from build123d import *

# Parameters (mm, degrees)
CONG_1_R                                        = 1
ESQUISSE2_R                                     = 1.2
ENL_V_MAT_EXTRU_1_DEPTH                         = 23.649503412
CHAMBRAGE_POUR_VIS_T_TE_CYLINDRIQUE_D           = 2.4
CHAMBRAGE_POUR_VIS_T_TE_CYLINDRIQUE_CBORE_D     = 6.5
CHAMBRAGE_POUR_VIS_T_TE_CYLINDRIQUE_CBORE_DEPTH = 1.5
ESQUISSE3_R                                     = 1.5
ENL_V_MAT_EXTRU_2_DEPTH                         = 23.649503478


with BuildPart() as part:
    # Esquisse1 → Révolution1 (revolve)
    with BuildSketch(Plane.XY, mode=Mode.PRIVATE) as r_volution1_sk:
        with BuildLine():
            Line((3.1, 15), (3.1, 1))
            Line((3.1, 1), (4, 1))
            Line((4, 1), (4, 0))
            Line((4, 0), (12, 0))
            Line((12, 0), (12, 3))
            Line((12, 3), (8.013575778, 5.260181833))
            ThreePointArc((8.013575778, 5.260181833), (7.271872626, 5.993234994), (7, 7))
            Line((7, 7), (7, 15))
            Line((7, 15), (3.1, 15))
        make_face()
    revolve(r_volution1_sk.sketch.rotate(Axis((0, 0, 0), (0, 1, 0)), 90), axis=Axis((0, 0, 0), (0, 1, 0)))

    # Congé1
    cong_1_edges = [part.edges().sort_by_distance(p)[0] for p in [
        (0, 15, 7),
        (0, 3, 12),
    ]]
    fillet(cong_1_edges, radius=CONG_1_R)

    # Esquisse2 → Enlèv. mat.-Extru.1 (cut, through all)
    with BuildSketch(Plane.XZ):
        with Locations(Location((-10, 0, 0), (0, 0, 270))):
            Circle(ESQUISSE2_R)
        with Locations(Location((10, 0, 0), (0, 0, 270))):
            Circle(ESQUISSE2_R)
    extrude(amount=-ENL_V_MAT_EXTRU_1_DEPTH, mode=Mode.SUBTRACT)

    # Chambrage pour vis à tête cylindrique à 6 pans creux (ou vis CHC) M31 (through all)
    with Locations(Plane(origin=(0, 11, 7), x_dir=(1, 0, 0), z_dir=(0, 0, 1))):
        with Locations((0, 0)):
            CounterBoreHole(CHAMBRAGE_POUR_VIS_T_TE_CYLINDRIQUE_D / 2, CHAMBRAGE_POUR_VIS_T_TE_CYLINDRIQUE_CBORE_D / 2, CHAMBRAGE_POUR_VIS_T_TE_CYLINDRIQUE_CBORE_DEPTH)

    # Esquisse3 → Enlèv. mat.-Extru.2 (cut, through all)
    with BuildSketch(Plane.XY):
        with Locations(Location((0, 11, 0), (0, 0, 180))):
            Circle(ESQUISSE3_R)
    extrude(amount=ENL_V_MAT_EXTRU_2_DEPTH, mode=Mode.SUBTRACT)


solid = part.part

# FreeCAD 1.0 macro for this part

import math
import FreeCAD as App
import Part
import Sketcher


def edges_at(feature, points):
    """Names of the edges that pass closest to the given points."""
    edges = feature.Shape.Edges
    near = lambda p: min(range(len(edges)), key=lambda i: edges[i].distToShape(Part.Vertex(*p))[0])
    return sorted({f"Edge{near(p) + 1}" for p in points})

doc = App.newDocument("Part")
body = doc.addObject("PartDesign::Body", "Body")

# Sketch on XY plane
sketch1 = body.newObject("Sketcher::SketchObject", "Sketch")
sketch1.AttachmentSupport = (doc.getObject("XY_Plane"), [""])
sketch1.MapMode = "FlatFace"
sketch1.addGeometry(Part.LineSegment(App.Vector(3.1, 15, 0), App.Vector(3.1, 1, 0)), False)
sketch1.addGeometry(Part.LineSegment(App.Vector(3.1, 1, 0), App.Vector(4, 1, 0)), False)
sketch1.addGeometry(Part.LineSegment(App.Vector(4, 1, 0), App.Vector(4, 0, 0)), False)
sketch1.addGeometry(Part.LineSegment(App.Vector(4, 0, 0), App.Vector(12, 0, 0)), False)
sketch1.addGeometry(Part.LineSegment(App.Vector(12, 0, 0), App.Vector(12, 3, 0)), False)
sketch1.addGeometry(Part.LineSegment(App.Vector(12, 3, 0), App.Vector(8.013576, 5.260182, 0)), False)
sketch1.addGeometry(Part.ArcOfCircle(Part.Circle(App.Vector(9, 7, 0), App.Vector(0, 0, 1), 2), math.radians(-180), math.radians(-119.551924)), False)
sketch1.addGeometry(Part.LineSegment(App.Vector(7, 7, 0), App.Vector(7, 15, 0)), False)
sketch1.addGeometry(Part.LineSegment(App.Vector(7, 15, 0), App.Vector(3.1, 15, 0)), False)
sketch1.addConstraint(Sketcher.Constraint("Coincident", 0, 2, 1, 1))
sketch1.addConstraint(Sketcher.Constraint("Coincident", 1, 2, 2, 1))
sketch1.addConstraint(Sketcher.Constraint("Coincident", 2, 2, 3, 1))
sketch1.addConstraint(Sketcher.Constraint("Coincident", 3, 2, 4, 1))
sketch1.addConstraint(Sketcher.Constraint("Coincident", 4, 2, 5, 1))
sketch1.addConstraint(Sketcher.Constraint("Tangent", 5, 2, 6, 2))
sketch1.addConstraint(Sketcher.Constraint("Tangent", 6, 1, 7, 1))
sketch1.addConstraint(Sketcher.Constraint("Coincident", 7, 2, 8, 1))
sketch1.addConstraint(Sketcher.Constraint("Coincident", 8, 2, 0, 1))
sketch1.addConstraint(Sketcher.Constraint("Vertical", 0))
sketch1.addConstraint(Sketcher.Constraint("Horizontal", 1))
sketch1.addConstraint(Sketcher.Constraint("Vertical", 2))
sketch1.addConstraint(Sketcher.Constraint("Horizontal", 3))
sketch1.addConstraint(Sketcher.Constraint("Vertical", 4))
sketch1.addConstraint(Sketcher.Constraint("Vertical", 7))
sketch1.addConstraint(Sketcher.Constraint("Horizontal", 8))
sketch1.addConstraint(Sketcher.Constraint("PointOnObject", 2, 2, -1))
sketch1.addConstraint(Sketcher.Constraint("Equal", 3, 7))
sketch1.addConstraint(Sketcher.Constraint("Radius", 6, 2.0))
sketch1.addConstraint(Sketcher.Constraint("DistanceX", 3, 1, 3, 2, 8.0))
sketch1.addConstraint(Sketcher.Constraint("DistanceY", 0, 2, 0, 1, 14.0))
sketch1.addConstraint(Sketcher.Constraint("DistanceY", 2, 2, 2, 1, 1.0))
sketch1.addConstraint(Sketcher.Constraint("DistanceY", 4, 1, 4, 2, 3.0))
sketch1.addConstraint(Sketcher.Constraint("DistanceX", 1, 1, 1, 2, 0.9))
sketch1.addConstraint(Sketcher.Constraint("DistanceX", 8, 2, 8, 1, 3.9))
sketch1.addConstraint(Sketcher.Constraint("DistanceX", -1, 1, 6, 3, 9.0))
revolution = body.newObject("PartDesign::Revolution", "Revolution")
revolution.Profile = sketch1
revolution.ReferenceAxis = (sketch1, ["V_Axis"])
revolution.Angle = 360
doc.recompute()

fillet = body.newObject("PartDesign::Fillet", "Fillet")
fillet.Base = (revolution, edges_at(revolution, [(0, 15, 7), (0, 3, 12)]))
fillet.Radius = 1

# Sketch on XZ plane
sketch2 = body.newObject("Sketcher::SketchObject", "Sketch001")
sketch2.AttachmentSupport = (doc.getObject("XZ_Plane"), [""])
sketch2.MapMode = "FlatFace"
sketch2.addGeometry(Part.Circle(App.Vector(-10, 0, 0), App.Vector(0, 0, 1), 1.2), False)
sketch2.addGeometry(Part.Circle(App.Vector(10, 0, 0), App.Vector(0, 0, 1), 1.2), False)
sketch2.addConstraint(Sketcher.Constraint("Equal", 0, 1))
sketch2.addConstraint(Sketcher.Constraint("Symmetric", 0, 3, 1, 3, -1, 1))
sketch2.addConstraint(Sketcher.Constraint("PointOnObject", 0, 3, -1))
sketch2.addConstraint(Sketcher.Constraint("Diameter", 0, 2.4))
sketch2.addConstraint(Sketcher.Constraint("DistanceX", 0, 3, -1, 1, 10.0))
pocket1 = body.newObject("PartDesign::Pocket", "Pocket")
pocket1.Profile = sketch2
pocket1.Type = "ThroughAll"

# Sketch on XY plane
sketch3 = body.newObject("Sketcher::SketchObject", "Sketch002")
sketch3.AttachmentSupport = (doc.getObject("XY_Plane"), [""])
sketch3.MapMode = "FlatFace"
sketch3.AttachmentOffset = App.Placement(App.Vector(0, 0, 7), App.Rotation())
sketch3.addGeometry(Part.Circle(App.Vector(0, 11, 0), App.Vector(0, 0, 1), 1.2), False)
sketch3.addConstraint(Sketcher.Constraint("PointOnObject", 0, 3, -2))
sketch3.addConstraint(Sketcher.Constraint("Diameter", 0, 2.4))
sketch3.addConstraint(Sketcher.Constraint("DistanceY", -1, 1, 0, 3, 11.0))
doc.recompute()
hole = body.newObject("PartDesign::Hole", "Hole")
hole.Profile = sketch3
hole.ThreadType = "None"
hole.Diameter = 2.4
hole.DepthType = "ThroughAll"
hole.HoleCutType = "Counterbore"
hole.HoleCutDiameter = 6.5
hole.HoleCutDepth = 1.5

# Sketch on XY plane
sketch4 = body.newObject("Sketcher::SketchObject", "Sketch003")
sketch4.AttachmentSupport = (doc.getObject("XY_Plane"), [""])
sketch4.MapMode = "FlatFace"
sketch4.addGeometry(Part.Circle(App.Vector(0, 11, 0), App.Vector(0, 0, 1), 1.5), False)
sketch4.addConstraint(Sketcher.Constraint("PointOnObject", 0, 3, -2))
sketch4.addConstraint(Sketcher.Constraint("Diameter", 0, 3.0))
sketch4.addConstraint(Sketcher.Constraint("DistanceY", -1, 1, 0, 3, 11.0))
pocket2 = body.newObject("PartDesign::Pocket", "Pocket001")
pocket2.Profile = sketch4
pocket2.Type = "ThroughAll"
pocket2.Reversed = True

doc.recompute()
